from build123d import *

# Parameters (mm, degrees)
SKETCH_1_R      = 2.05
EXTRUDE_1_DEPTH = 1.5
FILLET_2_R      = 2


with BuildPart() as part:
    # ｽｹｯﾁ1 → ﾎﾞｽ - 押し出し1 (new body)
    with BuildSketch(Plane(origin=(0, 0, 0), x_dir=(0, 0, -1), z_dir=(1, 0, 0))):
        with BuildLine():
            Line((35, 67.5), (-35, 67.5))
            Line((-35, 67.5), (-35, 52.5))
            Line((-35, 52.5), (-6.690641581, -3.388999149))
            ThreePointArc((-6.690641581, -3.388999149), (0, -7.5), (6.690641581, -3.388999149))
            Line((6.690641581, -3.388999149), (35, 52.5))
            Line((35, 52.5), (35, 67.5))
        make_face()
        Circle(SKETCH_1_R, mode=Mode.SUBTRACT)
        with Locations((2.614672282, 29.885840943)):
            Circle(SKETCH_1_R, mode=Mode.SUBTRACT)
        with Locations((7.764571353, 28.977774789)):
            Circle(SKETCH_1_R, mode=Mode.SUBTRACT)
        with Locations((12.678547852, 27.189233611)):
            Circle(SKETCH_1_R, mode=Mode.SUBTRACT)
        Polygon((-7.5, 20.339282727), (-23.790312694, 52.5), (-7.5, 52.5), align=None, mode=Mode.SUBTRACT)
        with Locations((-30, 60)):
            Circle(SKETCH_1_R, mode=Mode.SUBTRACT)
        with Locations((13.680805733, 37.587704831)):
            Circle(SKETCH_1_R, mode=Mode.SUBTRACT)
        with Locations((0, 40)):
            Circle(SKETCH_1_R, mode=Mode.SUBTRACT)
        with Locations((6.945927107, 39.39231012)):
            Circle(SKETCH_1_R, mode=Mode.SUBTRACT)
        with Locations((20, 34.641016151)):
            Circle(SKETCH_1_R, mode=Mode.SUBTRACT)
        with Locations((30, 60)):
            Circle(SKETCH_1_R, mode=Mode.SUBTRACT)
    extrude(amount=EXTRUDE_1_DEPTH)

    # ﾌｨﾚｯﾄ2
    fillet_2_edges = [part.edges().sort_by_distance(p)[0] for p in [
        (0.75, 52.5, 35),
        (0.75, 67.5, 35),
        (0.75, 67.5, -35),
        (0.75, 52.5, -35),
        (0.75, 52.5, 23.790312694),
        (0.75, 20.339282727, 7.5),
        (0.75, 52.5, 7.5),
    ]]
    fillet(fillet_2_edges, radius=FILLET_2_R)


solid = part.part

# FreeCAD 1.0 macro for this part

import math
import FreeCAD as App
import Part
import Sketcher


def edges_at(feature, points):
    """Names of the edges that pass closest to the given points."""
    edges = feature.Shape.Edges
    near = lambda p: min(range(len(edges)), key=lambda i: edges[i].distToShape(Part.Vertex(*p))[0])
    return sorted({f"Edge{near(p) + 1}" for p in points})


def add_polygon(sketch, points):
    """Adds a closed chain of lines whose ends are joined by coincident constraints."""
    first, n = sketch.GeometryCount, len(points)
    for a, b in zip(points, points[1:] + points[:1]):
        sketch.addGeometry(Part.LineSegment(App.Vector(*a, 0), App.Vector(*b, 0)), False)
    for i in range(n):
        sketch.addConstraint(Sketcher.Constraint("Coincident", first + i, 2, first + (i + 1) % n, 1))

doc = App.newDocument("Part")
body = doc.addObject("PartDesign::Body", "Body")

sketch1 = doc.addObject("Sketcher::SketchObject", "Sketch")
body.addObject(sketch1)
sketch1.AttachmentSupport = (doc.YZ_Plane, [""])
sketch1.MapMode = "FlatFace"
sketch1.addGeometry(Part.LineSegment(App.Vector(67.5, -35, 0), App.Vector(67.5, 35, 0)), False)
sketch1.addGeometry(Part.LineSegment(App.Vector(67.5, 35, 0), App.Vector(52.5, 35, 0)), False)
sketch1.addGeometry(Part.LineSegment(App.Vector(52.5, 35, 0), App.Vector(-3.4, 6.7, 0)), False)
sketch1.addGeometry(Part.ArcOfCircle(Part.Circle(App.Vector(0, 0, 0), App.Vector(0, 0, 1), 7.5), math.radians(117), math.radians(243)), False)
sketch1.addGeometry(Part.LineSegment(App.Vector(-3.4, -6.7, 0), App.Vector(52.5, -35, 0)), False)
sketch1.addGeometry(Part.LineSegment(App.Vector(52.5, -35, 0), App.Vector(67.5, -35, 0)), False)
sketch1.addGeometry(Part.Circle(App.Vector(0, 0, 0), App.Vector(0, 0, 1), 2), False)
sketch1.addGeometry(Part.Circle(App.Vector(29.9, -2.6, 0), App.Vector(0, 0, 1), 2), False)
sketch1.addGeometry(Part.Circle(App.Vector(29, -7.8, 0), App.Vector(0, 0, 1), 2), False)
sketch1.addGeometry(Part.Circle(App.Vector(27.2, -12.7, 0), App.Vector(0, 0, 1), 2), False)
add_polygon(sketch1, [(52.5, 7.5), (20.3, 7.5), (52.5, 23.8)])
sketch1.addGeometry(Part.Circle(App.Vector(60, 30, 0), App.Vector(0, 0, 1), 2), False)
sketch1.addGeometry(Part.Circle(App.Vector(37.6, -13.7, 0), App.Vector(0, 0, 1), 2), False)
sketch1.addGeometry(Part.Circle(App.Vector(40, 0, 0), App.Vector(0, 0, 1), 2), False)
sketch1.addGeometry(Part.Circle(App.Vector(39.4, -6.9, 0), App.Vector(0, 0, 1), 2), False)
sketch1.addGeometry(Part.Circle(App.Vector(34.6, -20, 0), App.Vector(0, 0, 1), 2), False)
sketch1.addGeometry(Part.Circle(App.Vector(60, -30, 0), App.Vector(0, 0, 1), 2), False)
sketch1.addConstraint([
    Sketcher.Constraint("Coincident", 0, 2, 1, 1),
    Sketcher.Constraint("Coincident", 1, 2, 2, 1),
    Sketcher.Constraint("Tangent", 2, 2, 3, 1),
    Sketcher.Constraint("Tangent", 3, 2, 4, 1),
    Sketcher.Constraint("Coincident", 4, 2, 5, 1),
    Sketcher.Constraint("Coincident", 5, 2, 0, 1),
    Sketcher.Constraint("Vertical", 0),
    Sketcher.Constraint("Horizontal", 1),
    Sketcher.Constraint("Horizontal", 5),
    Sketcher.Constraint("Horizontal", 10),
    Sketcher.Constraint("Vertical", 12),
    Sketcher.Constraint("Coincident", 3, 3, -1, 1),
    Sketcher.Constraint("Coincident", 6, 3, -1, 1),
    Sketcher.Constraint("Equal", 6, 7),
    Sketcher.Constraint("Equal", 7, 8),
    Sketcher.Constraint("Equal", 8, 9),
    Sketcher.Constraint("Equal", 9, 13),
    Sketcher.Constraint("Equal", 13, 14),
    Sketcher.Constraint("Equal", 14, 15),
    Sketcher.Constraint("Equal", 15, 16),
    Sketcher.Constraint("Equal", 16, 17),
    Sketcher.Constraint("Equal", 17, 18),
    Sketcher.Constraint("Symmetric", 13, 3, 18, 3, -1),
    Sketcher.Constraint("Symmetric", 1, 2, 4, 2, -1),
    Sketcher.Constraint("PointOnObject", 15, 3, -1),
    Sketcher.Constraint("Parallel", 2, 11),
    Sketcher.Constraint("Vertical", 4, 2, 11, 2),
    Sketcher.Constraint("Diameter", 6, 4.1),
    Sketcher.Constraint("Radius", 3, 7.5),
    Sketcher.Constraint("DistanceX", 1, 2, 1, 1, 15.0),
    Sketcher.Constraint("DistanceY", 0, 1, 0, 2, 70.0),
    Sketcher.Constraint("DistanceX", -1, 1, 13, 3, 60.0),
    Sketcher.Constraint("DistanceY", -1, 1, 13, 3, 30.0),
    Sketcher.Constraint("DistanceX", -1, 1, 15, 3, 40.0),
    Sketcher.Constraint("DistanceY", 17, 3, -1, 1, 20.0),
    Sketcher.Constraint("DistanceX", -1, 1, 0, 2, 67.5),
    Sketcher.Constraint("DistanceY", -1, 1, 10, 2, 7.5),
    Sketcher.Constraint("DistanceY", 8, 3, 7, 3, 5.149899),
    Sketcher.Constraint("Distance", 11, 36.051158),
    Sketcher.Constraint("DistanceX", -1, 1, 7, 3, 29.885841),
    Sketcher.Constraint("DistanceY", 8, 3, -1, 1, 7.764571),
    Sketcher.Constraint("DistanceX", -1, 1, 16, 3, 39.39231),
    Sketcher.Constraint("DistanceX", 9, 3, 8, 3, 1.788541),
    Sketcher.Constraint("DistanceX", 8, 3, 14, 3, 8.60993),
    Sketcher.Constraint("DistanceY", 14, 3, 16, 3, 6.734879),
    Sketcher.Constraint("DistanceY", 9, 3, 16, 3, 5.732621),
    Sketcher.Constraint("DistanceX", 17, 3, 14, 3, 2.946689),
    Sketcher.Constraint("DistanceY", 9, 3, 2, 2, 19.369189),
    Sketcher.Constraint("DistanceX", 10, 2, 9, 3, 6.849951),
])
pad1 = doc.addObject("PartDesign::Pad", "Pad")
body.addObject(pad1)
pad1.Profile = sketch1
pad1.Length = 1.5
doc.recompute()

fillet = doc.addObject("PartDesign::Fillet", "Fillet")
body.addObject(fillet)
fillet.Base = (pad1, edges_at(pad1, [
    (0.75, 52.5, 35),
    (0.75, 67.5, 35),
    (0.75, 67.5, -35),
    (0.75, 52.5, -35),
    (0.75, 52.5, 23.79),
    (0.75, 20.339, 7.5),
    (0.75, 52.5, 7.5),
]))
fillet.Radius = 2

doc.recompute()
